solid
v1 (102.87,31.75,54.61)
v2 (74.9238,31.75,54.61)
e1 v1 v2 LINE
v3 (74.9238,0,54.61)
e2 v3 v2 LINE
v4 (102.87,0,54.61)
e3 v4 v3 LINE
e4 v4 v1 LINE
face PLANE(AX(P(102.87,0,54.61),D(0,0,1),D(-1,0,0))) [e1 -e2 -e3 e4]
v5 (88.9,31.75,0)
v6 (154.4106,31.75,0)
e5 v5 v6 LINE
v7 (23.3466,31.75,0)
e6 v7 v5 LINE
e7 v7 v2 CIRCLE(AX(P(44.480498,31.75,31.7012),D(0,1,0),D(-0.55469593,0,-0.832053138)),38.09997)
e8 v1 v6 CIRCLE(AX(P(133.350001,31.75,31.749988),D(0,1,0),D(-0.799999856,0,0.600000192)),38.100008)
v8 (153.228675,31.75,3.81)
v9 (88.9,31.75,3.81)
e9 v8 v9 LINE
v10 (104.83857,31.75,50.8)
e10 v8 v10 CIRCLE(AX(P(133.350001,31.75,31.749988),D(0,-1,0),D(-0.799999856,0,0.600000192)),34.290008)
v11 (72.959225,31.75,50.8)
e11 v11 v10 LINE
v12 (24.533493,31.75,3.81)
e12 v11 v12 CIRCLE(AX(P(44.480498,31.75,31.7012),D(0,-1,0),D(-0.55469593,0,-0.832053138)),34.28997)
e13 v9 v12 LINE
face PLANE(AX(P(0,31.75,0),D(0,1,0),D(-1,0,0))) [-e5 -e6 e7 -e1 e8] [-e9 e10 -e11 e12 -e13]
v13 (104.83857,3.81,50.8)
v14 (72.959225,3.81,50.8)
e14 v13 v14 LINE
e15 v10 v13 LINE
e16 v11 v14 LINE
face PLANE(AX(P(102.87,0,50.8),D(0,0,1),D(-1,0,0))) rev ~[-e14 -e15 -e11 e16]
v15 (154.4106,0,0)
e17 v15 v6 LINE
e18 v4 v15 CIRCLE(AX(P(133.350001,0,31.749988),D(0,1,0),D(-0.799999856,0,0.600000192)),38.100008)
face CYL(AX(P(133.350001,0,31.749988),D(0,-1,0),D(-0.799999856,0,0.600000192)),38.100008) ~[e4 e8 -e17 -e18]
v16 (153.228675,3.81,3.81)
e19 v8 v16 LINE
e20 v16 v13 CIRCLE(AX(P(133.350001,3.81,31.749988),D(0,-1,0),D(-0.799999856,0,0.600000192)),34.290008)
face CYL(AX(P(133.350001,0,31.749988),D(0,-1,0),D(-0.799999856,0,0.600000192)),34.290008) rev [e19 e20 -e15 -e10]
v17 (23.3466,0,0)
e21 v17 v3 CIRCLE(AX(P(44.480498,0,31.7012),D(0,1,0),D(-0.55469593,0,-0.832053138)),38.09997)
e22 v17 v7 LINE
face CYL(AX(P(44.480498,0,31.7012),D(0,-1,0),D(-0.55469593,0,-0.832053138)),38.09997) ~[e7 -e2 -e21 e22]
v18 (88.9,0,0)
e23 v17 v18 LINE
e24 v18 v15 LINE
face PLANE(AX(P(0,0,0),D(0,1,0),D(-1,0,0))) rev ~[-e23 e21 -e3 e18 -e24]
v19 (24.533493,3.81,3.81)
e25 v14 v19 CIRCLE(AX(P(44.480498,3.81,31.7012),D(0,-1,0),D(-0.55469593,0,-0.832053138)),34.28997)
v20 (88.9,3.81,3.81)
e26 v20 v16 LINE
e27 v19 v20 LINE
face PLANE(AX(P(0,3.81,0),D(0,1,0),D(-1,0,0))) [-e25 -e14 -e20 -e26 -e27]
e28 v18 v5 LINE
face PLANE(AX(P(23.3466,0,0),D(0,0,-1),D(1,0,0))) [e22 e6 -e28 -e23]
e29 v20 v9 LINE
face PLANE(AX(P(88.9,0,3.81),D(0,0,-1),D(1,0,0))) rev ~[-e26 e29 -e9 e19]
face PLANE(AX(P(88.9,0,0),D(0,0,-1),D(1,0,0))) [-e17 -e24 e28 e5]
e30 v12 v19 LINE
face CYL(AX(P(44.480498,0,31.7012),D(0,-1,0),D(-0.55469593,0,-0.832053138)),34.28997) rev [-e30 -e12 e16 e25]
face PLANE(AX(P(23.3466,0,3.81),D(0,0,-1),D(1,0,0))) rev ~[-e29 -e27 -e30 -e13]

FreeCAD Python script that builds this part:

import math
import FreeCAD as App
import Part
import Sketcher
Q = App.Units.Quantity


def faces_at(feature, points):
    """Names of the faces that lie closest to the given points."""
    faces = feature.Shape.Faces
    near = lambda p: min(range(len(faces)), key=lambda i: faces[i].distToShape(Part.Vertex(*p))[0])
    return sorted({f"Face{near(p) + 1}" for p in points})

doc = App.newDocument("Part")
body = doc.addObject("PartDesign::Body", "Body")

sketch1 = body.newObject("Sketcher::SketchObject", "Sketch")
sketch1.AttachmentSupport = (doc.getObject("XZ_Plane"), [""])
sketch1.MapMode = "FlatFace"
sketch1.addGeometry(Part.LineSegment(App.Vector(154, 0, 0), App.Vector(23, 0, 0)), False)
sketch1.addGeometry(Part.ArcOfCircle(Part.Circle(App.Vector(44, 32, 0), App.Vector(0, 0, 1), 38), math.radians(37), math.radians(236)), False)
sketch1.addGeometry(Part.LineSegment(App.Vector(75, 55, 0), App.Vector(103, 55, 0)), False)
sketch1.addGeometry(Part.ArcOfCircle(Part.Circle(App.Vector(133, 32, 0), App.Vector(0, 0, 1), 38), math.radians(-56), math.radians(143)), False)
sketch1.addConstraint(Sketcher.Constraint("Coincident", 0, 2, 1, 2))
sketch1.addConstraint(Sketcher.Constraint("Coincident", 1, 1, 2, 1))
sketch1.addConstraint(Sketcher.Constraint("Coincident", 2, 2, 3, 2))
sketch1.addConstraint(Sketcher.Constraint("Coincident", 3, 1, 0, 1))
sketch1.addConstraint(Sketcher.Constraint("Horizontal", 0))
sketch1.addConstraint(Sketcher.Constraint("Horizontal", 2))
sketch1.addConstraint(Sketcher.Constraint("Equal", 1, 3))
sketch1.addConstraint(Sketcher.Constraint("PointOnObject", 0, 2, -1))
sketch1.addConstraint(Sketcher.Constraint("Radius", 1, Q("1.5 in")))
sketch1.addConstraint(Sketcher.Constraint("DistanceX", 0, 2, 0, 1, Q("5.16 in")))
sketch1.addConstraint(Sketcher.Constraint("DistanceY", -1, 1, 1, 1, Q("2.15 in")))
sketch1.addConstraint(Sketcher.Constraint("DistanceY", 3, 3, 1, 1, Q("0.9 in")))
sketch1.addConstraint(Sketcher.Constraint("DistanceX", -1, 1, 3, 3, Q("5.25 in")))
sketch1.addConstraint(Sketcher.Constraint("DistanceX", 2, 1, 2, 2, Q("27.9462 mm")))
pad1 = body.newObject("PartDesign::Pad", "Pad")
pad1.Profile = sketch1
pad1.Length = Q("1.25 in")
pad1.Reversed = True
doc.recompute()

thickness = body.newObject("PartDesign::Thickness", "Thickness")
thickness.Base = (pad1, faces_at(pad1, [(84.227, 31.75, 18.203)]))
thickness.Value = Q("0.15 in")
thickness.Reversed = True
thickness.Join = "Intersection"

doc.recompute()
